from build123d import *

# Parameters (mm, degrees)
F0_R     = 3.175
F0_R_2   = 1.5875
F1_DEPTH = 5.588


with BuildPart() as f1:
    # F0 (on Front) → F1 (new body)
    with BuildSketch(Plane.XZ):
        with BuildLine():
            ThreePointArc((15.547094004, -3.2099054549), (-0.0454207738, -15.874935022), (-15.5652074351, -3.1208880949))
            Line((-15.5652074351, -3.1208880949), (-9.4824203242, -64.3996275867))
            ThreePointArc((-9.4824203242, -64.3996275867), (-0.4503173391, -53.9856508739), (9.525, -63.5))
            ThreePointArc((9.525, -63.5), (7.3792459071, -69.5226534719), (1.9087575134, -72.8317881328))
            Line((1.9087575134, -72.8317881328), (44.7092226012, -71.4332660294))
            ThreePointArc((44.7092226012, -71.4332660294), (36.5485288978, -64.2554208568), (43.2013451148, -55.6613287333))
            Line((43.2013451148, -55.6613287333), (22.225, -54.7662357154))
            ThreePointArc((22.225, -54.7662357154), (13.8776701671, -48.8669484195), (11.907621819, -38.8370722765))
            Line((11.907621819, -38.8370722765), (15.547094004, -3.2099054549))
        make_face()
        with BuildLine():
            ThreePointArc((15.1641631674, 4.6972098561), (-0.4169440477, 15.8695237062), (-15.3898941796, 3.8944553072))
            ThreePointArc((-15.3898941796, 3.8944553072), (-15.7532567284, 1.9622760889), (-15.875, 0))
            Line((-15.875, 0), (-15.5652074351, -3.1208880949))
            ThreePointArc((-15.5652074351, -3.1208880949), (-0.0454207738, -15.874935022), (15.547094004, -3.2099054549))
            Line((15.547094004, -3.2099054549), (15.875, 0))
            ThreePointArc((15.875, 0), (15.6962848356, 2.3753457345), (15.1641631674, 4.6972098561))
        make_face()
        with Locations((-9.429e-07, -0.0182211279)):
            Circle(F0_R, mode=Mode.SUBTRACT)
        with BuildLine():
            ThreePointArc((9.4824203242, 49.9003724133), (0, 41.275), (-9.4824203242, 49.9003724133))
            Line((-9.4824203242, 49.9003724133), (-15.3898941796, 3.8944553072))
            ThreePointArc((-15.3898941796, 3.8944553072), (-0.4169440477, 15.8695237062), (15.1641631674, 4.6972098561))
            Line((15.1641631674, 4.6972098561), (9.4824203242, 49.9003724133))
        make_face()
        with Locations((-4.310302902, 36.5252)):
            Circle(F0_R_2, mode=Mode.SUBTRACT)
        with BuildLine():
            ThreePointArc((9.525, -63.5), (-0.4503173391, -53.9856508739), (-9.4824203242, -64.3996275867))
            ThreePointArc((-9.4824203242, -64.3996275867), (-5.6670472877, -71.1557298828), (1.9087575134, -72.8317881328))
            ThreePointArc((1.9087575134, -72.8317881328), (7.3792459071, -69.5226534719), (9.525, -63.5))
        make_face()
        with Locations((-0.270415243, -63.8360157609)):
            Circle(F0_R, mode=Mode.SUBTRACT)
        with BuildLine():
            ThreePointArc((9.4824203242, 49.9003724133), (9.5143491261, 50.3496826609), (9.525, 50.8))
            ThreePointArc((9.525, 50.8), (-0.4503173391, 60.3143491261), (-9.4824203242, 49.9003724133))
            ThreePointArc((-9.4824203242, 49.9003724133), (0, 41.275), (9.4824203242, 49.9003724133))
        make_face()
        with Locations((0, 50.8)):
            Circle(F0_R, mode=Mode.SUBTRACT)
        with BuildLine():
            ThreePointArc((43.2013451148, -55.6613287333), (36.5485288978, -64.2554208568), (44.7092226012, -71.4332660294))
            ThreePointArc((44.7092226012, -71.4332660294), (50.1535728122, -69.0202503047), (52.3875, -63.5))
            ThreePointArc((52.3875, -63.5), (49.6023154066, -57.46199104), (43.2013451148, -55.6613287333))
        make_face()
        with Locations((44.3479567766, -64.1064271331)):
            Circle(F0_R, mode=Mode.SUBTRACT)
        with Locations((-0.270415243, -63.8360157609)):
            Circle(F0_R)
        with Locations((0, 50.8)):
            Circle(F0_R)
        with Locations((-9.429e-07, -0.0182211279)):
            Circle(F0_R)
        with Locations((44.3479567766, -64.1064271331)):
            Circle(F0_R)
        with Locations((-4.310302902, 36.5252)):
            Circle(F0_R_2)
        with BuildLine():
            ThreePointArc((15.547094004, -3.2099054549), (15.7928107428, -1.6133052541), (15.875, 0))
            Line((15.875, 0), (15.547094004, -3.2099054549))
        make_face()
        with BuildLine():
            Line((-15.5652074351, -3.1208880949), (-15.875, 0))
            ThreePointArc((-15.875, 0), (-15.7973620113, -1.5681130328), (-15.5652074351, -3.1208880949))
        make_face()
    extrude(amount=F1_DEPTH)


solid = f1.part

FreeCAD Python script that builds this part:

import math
import FreeCAD as App
import Part
import Sketcher

V = App.Vector
Q = App.Units.Quantity

doc = App.newDocument("Part")
body = doc.addObject("PartDesign::Body", "Body")

sketch1 = body.newObject("Sketcher::SketchObject", "Sketch")
sketch1.AttachmentSupport = (doc.getObject("XZ_Plane"), [""])
sketch1.MapMode = "FlatFace"
sketch1.addGeometry([
    Part.LineSegment(V(-15.565207, -3.120888, 0), V(-9.48242, -64.399628, 0)),
    Part.ArcOfCircle(Part.Circle(V(0, -63.5, 0), V(0, 0, 1), 9.525), math.radians(-174.580388), math.radians(-78.439971)),
    Part.LineSegment(V(1.908758, -72.831788, 0), V(44.709223, -71.433266, 0)),
    Part.ArcOfCircle(Part.Circle(V(44.45, -63.5, 0), V(0, 0, 1), 7.9375), math.radians(-88.128504), math.radians(0)),
    Part.ArcOfCircle(Part.Circle(V(44.45, -63.5, 0), V(0, 0, 1), 7.9375), math.radians(0), math.radians(99.050843)),
    Part.LineSegment(V(43.201345, -55.661329, 0), V(22.225, -54.766236, 0)),
    Part.ArcOfCircle(Part.Circle(V(25.41895, -41.391619, 0), V(0, 0, 1), 13.750698), math.radians(169.293636), math.radians(256.568923)),
    Part.LineSegment(V(11.907622, -38.837072, 0), V(15.547094, -3.209905, 0)),
    Part.ArcOfCircle(Part.Circle(V(0, 0, 0), V(0, 0, 1), 15.875), math.radians(-11.665567), math.radians(0)),
    Part.ArcOfCircle(Part.Circle(V(0, 0, 0), V(0, 0, 1), 15.875), math.radians(0), math.radians(17.210747)),
    Part.LineSegment(V(15.164163, 4.69721, 0), V(9.48242, 49.900372, 0)),
    Part.ArcOfCircle(Part.Circle(V(0, 50.8, 0), V(0, 0, 1), 9.525), math.radians(-5.419612), math.radians(0)),
    Part.ArcOfCircle(Part.Circle(V(0, 50.8, 0), V(0, 0, 1), 9.525), math.radians(0), math.radians(185.419612)),
    Part.LineSegment(V(-9.48242, 49.900372, 0), V(-15.389894, 3.894455, 0)),
    Part.ArcOfCircle(Part.Circle(V(0, 0, 0), V(0, 0, 1), 15.875), math.radians(165.799253), math.radians(180)),
    Part.ArcOfCircle(Part.Circle(V(0, 0, 0), V(0, 0, 1), 15.875), math.radians(180), math.radians(191.337702)),
], False)
sketch1.addConstraint([
    Sketcher.Constraint("Coincident", 0, 2, 1, 1),
    Sketcher.Constraint("Coincident", 1, 2, 2, 1),
    Sketcher.Constraint("Tangent", 2, 2, 3, 1),
    Sketcher.Constraint("Tangent", 3, 2, 4, 1),
    Sketcher.Constraint("Coincident", 4, 2, 5, 1),
    Sketcher.Constraint("Coincident", 5, 2, 6, 2),
    Sketcher.Constraint("Coincident", 6, 1, 7, 1),
    Sketcher.Constraint("Coincident", 7, 2, 8, 1),
    Sketcher.Constraint("Tangent", 8, 2, 9, 1),
    Sketcher.Constraint("Coincident", 9, 2, 10, 1),
    Sketcher.Constraint("Coincident", 10, 2, 11, 1),
    Sketcher.Constraint("Tangent", 11, 2, 12, 1),
    Sketcher.Constraint("Coincident", 12, 2, 13, 1),
    Sketcher.Constraint("Coincident", 13, 2, 14, 1),
    Sketcher.Constraint("Tangent", 14, 2, 15, 1),
    Sketcher.Constraint("Coincident", 15, 2, 0, 1),
    Sketcher.Constraint("Coincident", 8, 3, -1, 1),
    Sketcher.Constraint("Coincident", 14, 3, -1, 1),
    Sketcher.Constraint("Equal", 3, 4),
    Sketcher.Constraint("Equal", 8, 9),
    Sketcher.Constraint("Equal", 1, 11),
    Sketcher.Constraint("Equal", 11, 12),
    Sketcher.Constraint("Equal", 9, 14),
    Sketcher.Constraint("Equal", 14, 15),
    Sketcher.Constraint("Symmetric", 10, 2, 12, 2, -2),
    Sketcher.Constraint("PointOnObject", 1, 3, -2),
    Sketcher.Constraint("PointOnObject", 8, 2, -1),
    Sketcher.Constraint("PointOnObject", 14, 2, -1),
    Sketcher.Constraint("Horizontal", 1, 3, 3, 3),
    Sketcher.Constraint("Horizontal", 4, 3, 3, 2),
    Sketcher.Constraint("Horizontal", 12, 3, 11, 2),
    Sketcher.Constraint("Vertical", 0, 2, 12, 2),
    Sketcher.Constraint("DistanceY", -1, 1, 11, 3, Q("2 in")),
    Sketcher.Constraint("Radius", 1, Q("0.375 in")),
    Sketcher.Constraint("Radius", 3, Q("0.3125 in")),
    Sketcher.Constraint("Radius", 8, Q("0.625 in")),
    Sketcher.Constraint("DistanceY", 1, 3, -1, 1, Q("2.5 in")),
    Sketcher.Constraint("DistanceX", -1, 1, 3, 3, Q("1.75 in")),
    Sketcher.Constraint("Radius", 6, Q("13.750698 mm")),
    Sketcher.Constraint("DistanceX", -1, 1, 5, 2, Q("0.875 in")),
    Sketcher.Constraint("DistanceY", 0, 2, 6, 1, Q("1.0063998 in")),
    Sketcher.Constraint("Distance", 0, Q("61.579901 mm")),
    Sketcher.Constraint("Distance", 7, Q("35.812578 mm")),
    Sketcher.Constraint("DistanceX", -1, 1, 6, 3, Q("25.41895 mm")),
    Sketcher.Constraint("DistanceY", 6, 3, -1, 1, Q("41.391619 mm")),
    Sketcher.Constraint("DistanceX", 0, 2, -1, 1, Q("9.48242 mm")),
    Sketcher.Constraint("DistanceY", 1, 2, -1, 1, Q("72.831788 mm")),
    Sketcher.Constraint("DistanceY", 4, 2, -1, 1, Q("55.661329 mm")),
    Sketcher.Constraint("DistanceY", -1, 1, 9, 2, Q("4.69721 mm")),
    Sketcher.Constraint("Distance", 13, Q("46.383646 mm")),
])
pad1 = body.newObject("PartDesign::Pad", "Pad")
pad1.Profile = sketch1
pad1.Length = Q("0.22 in")

doc.recompute()
